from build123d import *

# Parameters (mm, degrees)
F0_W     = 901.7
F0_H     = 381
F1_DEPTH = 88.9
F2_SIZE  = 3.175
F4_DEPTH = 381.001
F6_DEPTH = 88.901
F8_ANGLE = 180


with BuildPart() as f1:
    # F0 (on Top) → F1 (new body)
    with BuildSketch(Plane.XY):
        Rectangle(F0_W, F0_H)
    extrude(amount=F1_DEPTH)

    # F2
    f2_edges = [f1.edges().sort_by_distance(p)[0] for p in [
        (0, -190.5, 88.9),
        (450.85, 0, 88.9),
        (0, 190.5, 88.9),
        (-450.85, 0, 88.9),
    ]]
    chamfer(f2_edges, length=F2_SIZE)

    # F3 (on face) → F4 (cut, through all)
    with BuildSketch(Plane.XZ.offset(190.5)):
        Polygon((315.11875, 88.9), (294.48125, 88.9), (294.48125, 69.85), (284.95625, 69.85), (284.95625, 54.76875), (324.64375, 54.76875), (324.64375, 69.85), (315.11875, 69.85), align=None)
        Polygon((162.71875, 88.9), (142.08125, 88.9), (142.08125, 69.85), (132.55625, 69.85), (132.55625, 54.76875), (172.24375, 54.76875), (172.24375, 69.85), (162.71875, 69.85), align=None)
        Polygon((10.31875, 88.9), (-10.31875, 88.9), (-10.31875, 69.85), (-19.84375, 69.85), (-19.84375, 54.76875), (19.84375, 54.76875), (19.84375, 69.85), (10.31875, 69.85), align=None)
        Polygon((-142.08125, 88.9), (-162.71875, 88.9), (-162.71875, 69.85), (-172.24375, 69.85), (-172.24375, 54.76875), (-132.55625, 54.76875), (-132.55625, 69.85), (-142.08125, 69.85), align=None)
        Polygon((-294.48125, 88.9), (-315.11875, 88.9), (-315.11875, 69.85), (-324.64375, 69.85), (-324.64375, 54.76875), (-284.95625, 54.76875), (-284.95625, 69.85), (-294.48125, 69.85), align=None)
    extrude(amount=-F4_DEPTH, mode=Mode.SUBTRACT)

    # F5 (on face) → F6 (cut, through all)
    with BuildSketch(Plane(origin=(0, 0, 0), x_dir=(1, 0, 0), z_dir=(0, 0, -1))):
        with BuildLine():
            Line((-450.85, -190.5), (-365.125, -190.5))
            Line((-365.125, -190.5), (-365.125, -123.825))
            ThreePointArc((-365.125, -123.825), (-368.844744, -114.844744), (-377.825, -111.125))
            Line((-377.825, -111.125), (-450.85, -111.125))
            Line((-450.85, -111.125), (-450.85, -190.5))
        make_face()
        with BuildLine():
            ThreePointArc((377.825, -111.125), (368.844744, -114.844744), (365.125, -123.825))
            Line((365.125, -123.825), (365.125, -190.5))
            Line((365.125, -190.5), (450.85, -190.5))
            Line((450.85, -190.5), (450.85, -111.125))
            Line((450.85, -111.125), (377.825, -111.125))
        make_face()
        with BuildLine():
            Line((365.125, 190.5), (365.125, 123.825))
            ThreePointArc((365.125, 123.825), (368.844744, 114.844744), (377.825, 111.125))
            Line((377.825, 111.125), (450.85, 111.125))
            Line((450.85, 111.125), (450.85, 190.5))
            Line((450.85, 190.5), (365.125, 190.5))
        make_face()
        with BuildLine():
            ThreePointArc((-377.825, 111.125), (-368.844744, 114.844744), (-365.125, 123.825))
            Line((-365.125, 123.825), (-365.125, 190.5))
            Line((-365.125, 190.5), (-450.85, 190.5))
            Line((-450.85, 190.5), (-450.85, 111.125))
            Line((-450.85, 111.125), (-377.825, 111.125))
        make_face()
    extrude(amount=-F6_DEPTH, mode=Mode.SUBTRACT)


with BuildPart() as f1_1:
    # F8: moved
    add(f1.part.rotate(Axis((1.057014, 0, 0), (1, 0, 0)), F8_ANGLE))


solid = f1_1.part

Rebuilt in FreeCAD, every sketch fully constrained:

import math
import FreeCAD as App
import Part
import Sketcher

V = App.Vector
Q = App.Units.Quantity


def edges_at(feature, points):
    """Names of the edges that pass closest to the given points."""
    edges = feature.Shape.Edges
    near = lambda p: min(range(len(edges)), key=lambda i: edges[i].distToShape(Part.Vertex(*p))[0])
    return sorted({f"Edge{near(p) + 1}" for p in points})

doc = App.newDocument("Part")
body = doc.addObject("PartDesign::Body", "Body")

sketch1 = body.newObject("Sketcher::SketchObject", "Sketch")
sketch1.AttachmentSupport = (doc.getObject("XY_Plane"), [""])
sketch1.MapMode = "FlatFace"
sketch1.addGeometry([
    Part.LineSegment(V(-451, 190, 0), V(-451, -190, 0)),
    Part.LineSegment(V(-451, -190, 0), V(451, -190, 0)),
    Part.LineSegment(V(451, -190, 0), V(451, 190, 0)),
    Part.LineSegment(V(451, 190, 0), V(-451, 190, 0)),
], False)
sketch1.addConstraint([
    Sketcher.Constraint("Coincident", 0, 2, 1, 1),
    Sketcher.Constraint("Coincident", 1, 2, 2, 1),
    Sketcher.Constraint("Coincident", 2, 2, 3, 1),
    Sketcher.Constraint("Coincident", 3, 2, 0, 1),
    Sketcher.Constraint("Vertical", 0),
    Sketcher.Constraint("Horizontal", 1),
    Sketcher.Constraint("Vertical", 2),
    Sketcher.Constraint("Horizontal", 3),
    Sketcher.Constraint("Symmetric", 0, 2, 2, 2, -1, 1),
    Sketcher.Constraint("DistanceY", 0, 2, 0, 1, Q("15 in")),
    Sketcher.Constraint("DistanceX", 1, 1, 1, 2, Q("35.5 in")),
])
pad1 = body.newObject("PartDesign::Pad", "Pad")
pad1.Profile = sketch1
pad1.Length = Q("3.5 in")
doc.recompute()

chamfer = body.newObject("PartDesign::Chamfer", "Chamfer")
chamfer.Base = (pad1, edges_at(pad1, [
    (0, -190.5, 88.9),
    (450.85, 0, 88.9),
    (0, 190.5, 88.9),
    (-450.85, 0, 88.9),
]))
chamfer.Size = Q("0.125 in")

sketch2 = body.newObject("Sketcher::SketchObject", "Sketch001")
sketch2.AttachmentSupport = (doc.getObject("XZ_Plane"), [""])
sketch2.MapMode = "FlatFace"
sketch2.AttachmentOffset = App.Placement(V(0, 0, 7.5 * 25.4), App.Rotation())
sketch2.addGeometry([
    Part.LineSegment(V(315, 89, 0), V(294, 89, 0)),
    Part.LineSegment(V(294, 89, 0), V(294, 70, 0)),
    Part.LineSegment(V(294, 70, 0), V(285, 70, 0)),
    Part.LineSegment(V(285, 70, 0), V(285, 55, 0)),
    Part.LineSegment(V(285, 55, 0), V(325, 55, 0)),
    Part.LineSegment(V(325, 55, 0), V(325, 70, 0)),
    Part.LineSegment(V(325, 70, 0), V(315, 70, 0)),
    Part.LineSegment(V(315, 70, 0), V(315, 89, 0)),
    Part.LineSegment(V(163, 89, 0), V(142, 89, 0)),
    Part.LineSegment(V(142, 89, 0), V(142, 70, 0)),
    Part.LineSegment(V(142, 70, 0), V(133, 70, 0)),
    Part.LineSegment(V(133, 70, 0), V(133, 55, 0)),
    Part.LineSegment(V(133, 55, 0), V(172, 55, 0)),
    Part.LineSegment(V(172, 55, 0), V(172, 70, 0)),
    Part.LineSegment(V(172, 70, 0), V(163, 70, 0)),
    Part.LineSegment(V(163, 70, 0), V(163, 89, 0)),
    Part.LineSegment(V(10, 89, 0), V(-10, 89, 0)),
    Part.LineSegment(V(-10, 89, 0), V(-10, 70, 0)),
    Part.LineSegment(V(-10, 70, 0), V(-20, 70, 0)),
    Part.LineSegment(V(-20, 70, 0), V(-20, 55, 0)),
    Part.LineSegment(V(-20, 55, 0), V(20, 55, 0)),
    Part.LineSegment(V(20, 55, 0), V(20, 70, 0)),
    Part.LineSegment(V(20, 70, 0), V(10, 70, 0)),
    Part.LineSegment(V(10, 70, 0), V(10, 89, 0)),
    Part.LineSegment(V(-142, 89, 0), V(-163, 89, 0)),
    Part.LineSegment(V(-163, 89, 0), V(-163, 70, 0)),
    Part.LineSegment(V(-163, 70, 0), V(-172, 70, 0)),
    Part.LineSegment(V(-172, 70, 0), V(-172, 55, 0)),
    Part.LineSegment(V(-172, 55, 0), V(-133, 55, 0)),
    Part.LineSegment(V(-133, 55, 0), V(-133, 70, 0)),
    Part.LineSegment(V(-133, 70, 0), V(-142, 70, 0)),
    Part.LineSegment(V(-142, 70, 0), V(-142, 89, 0)),
    Part.LineSegment(V(-294, 89, 0), V(-315, 89, 0)),
    Part.LineSegment(V(-315, 89, 0), V(-315, 70, 0)),
    Part.LineSegment(V(-315, 70, 0), V(-325, 70, 0)),
    Part.LineSegment(V(-325, 70, 0), V(-325, 55, 0)),
    Part.LineSegment(V(-325, 55, 0), V(-285, 55, 0)),
    Part.LineSegment(V(-285, 55, 0), V(-285, 70, 0)),
    Part.LineSegment(V(-285, 70, 0), V(-294, 70, 0)),
    Part.LineSegment(V(-294, 70, 0), V(-294, 89, 0)),
], False)
sketch2.addConstraint([
    Sketcher.Constraint("Coincident", 0, 2, 1, 1),
    Sketcher.Constraint("Coincident", 1, 2, 2, 1),
    Sketcher.Constraint("Coincident", 2, 2, 3, 1),
    Sketcher.Constraint("Coincident", 3, 2, 4, 1),
    Sketcher.Constraint("Coincident", 4, 2, 5, 1),
    Sketcher.Constraint("Coincident", 5, 2, 6, 1),
    Sketcher.Constraint("Coincident", 6, 2, 7, 1),
    Sketcher.Constraint("Coincident", 7, 2, 0, 1),
    Sketcher.Constraint("Coincident", 8, 2, 9, 1),
    Sketcher.Constraint("Coincident", 9, 2, 10, 1),
    Sketcher.Constraint("Coincident", 10, 2, 11, 1),
    Sketcher.Constraint("Coincident", 11, 2, 12, 1),
    Sketcher.Constraint("Coincident", 12, 2, 13, 1),
    Sketcher.Constraint("Coincident", 13, 2, 14, 1),
    Sketcher.Constraint("Coincident", 14, 2, 15, 1),
    Sketcher.Constraint("Coincident", 15, 2, 8, 1),
    Sketcher.Constraint("Coincident", 16, 2, 17, 1),
    Sketcher.Constraint("Coincident", 17, 2, 18, 1),
    Sketcher.Constraint("Coincident", 18, 2, 19, 1),
    Sketcher.Constraint("Coincident", 19, 2, 20, 1),
    Sketcher.Constraint("Coincident", 20, 2, 21, 1),
    Sketcher.Constraint("Coincident", 21, 2, 22, 1),
    Sketcher.Constraint("Coincident", 22, 2, 23, 1),
    Sketcher.Constraint("Coincident", 23, 2, 16, 1),
    Sketcher.Constraint("Coincident", 24, 2, 25, 1),
    Sketcher.Constraint("Coincident", 25, 2, 26, 1),
    Sketcher.Constraint("Coincident", 26, 2, 27, 1),
    Sketcher.Constraint("Coincident", 27, 2, 28, 1),
    Sketcher.Constraint("Coincident", 28, 2, 29, 1),
    Sketcher.Constraint("Coincident", 29, 2, 30, 1),
    Sketcher.Constraint("Coincident", 30, 2, 31, 1),
    Sketcher.Constraint("Coincident", 31, 2, 24, 1),
    Sketcher.Constraint("Coincident", 32, 2, 33, 1),
    Sketcher.Constraint("Coincident", 33, 2, 34, 1),
    Sketcher.Constraint("Coincident", 34, 2, 35, 1),
    Sketcher.Constraint("Coincident", 35, 2, 36, 1),
    Sketcher.Constraint("Coincident", 36, 2, 37, 1),
    Sketcher.Constraint("Coincident", 37, 2, 38, 1),
    Sketcher.Constraint("Coincident", 38, 2, 39, 1),
    Sketcher.Constraint("Coincident", 39, 2, 32, 1),
    Sketcher.Constraint("Horizontal", 0),
    Sketcher.Constraint("Vertical", 1),
    Sketcher.Constraint("Horizontal", 2),
    Sketcher.Constraint("Vertical", 3),
    Sketcher.Constraint("Horizontal", 4),
    Sketcher.Constraint("Vertical", 5),
    Sketcher.Constraint("Horizontal", 6),
    Sketcher.Constraint("Vertical", 7),
    Sketcher.Constraint("Horizontal", 8),
    Sketcher.Constraint("Vertical", 9),
    Sketcher.Constraint("Horizontal", 10),
    Sketcher.Constraint("Vertical", 11),
    Sketcher.Constraint("Horizontal", 12),
    Sketcher.Constraint("Vertical", 13),
    Sketcher.Constraint("Horizontal", 14),
    Sketcher.Constraint("Vertical", 15),
    Sketcher.Constraint("Horizontal", 16),
    Sketcher.Constraint("Vertical", 17),
    Sketcher.Constraint("Horizontal", 18),
    Sketcher.Constraint("Vertical", 19),
    Sketcher.Constraint("Horizontal", 20),
    Sketcher.Constraint("Vertical", 21),
    Sketcher.Constraint("Horizontal", 22),
    Sketcher.Constraint("Vertical", 23),
    Sketcher.Constraint("Horizontal", 24),
    Sketcher.Constraint("Vertical", 25),
    Sketcher.Constraint("Horizontal", 26),
    Sketcher.Constraint("Vertical", 27),
    Sketcher.Constraint("Horizontal", 28),
    Sketcher.Constraint("Vertical", 29),
    Sketcher.Constraint("Horizontal", 30),
    Sketcher.Constraint("Vertical", 31),
    Sketcher.Constraint("Horizontal", 32),
    Sketcher.Constraint("Vertical", 33),
    Sketcher.Constraint("Horizontal", 34),
    Sketcher.Constraint("Vertical", 35),
    Sketcher.Constraint("Horizontal", 36),
    Sketcher.Constraint("Vertical", 37),
    Sketcher.Constraint("Horizontal", 38),
    Sketcher.Constraint("Vertical", 39),
    Sketcher.Constraint("Symmetric", 18, 2, 21, 2, -2),
    Sketcher.Constraint("Symmetric", 15, 2, 24, 2, -2),
    Sketcher.Constraint("Symmetric", 13, 2, 26, 2, -2),
    Sketcher.Constraint("Symmetric", 11, 2, 28, 2, -2),
    Sketcher.Constraint("Symmetric", 9, 2, 30, 2, -2),
    Sketcher.Constraint("Symmetric", 7, 2, 32, 2, -2),
    Sketcher.Constraint("Symmetric", 5, 2, 34, 2, -2),
    Sketcher.Constraint("Symmetric", 3, 2, 36, 2, -2),
    Sketcher.Constraint("Symmetric", 1, 2, 38, 2, -2),
    Sketcher.Constraint("Horizontal", 2, 2, 5, 2),
    Sketcher.Constraint("Horizontal", 7, 2, 8, 2),
    Sketcher.Constraint("Horizontal", 6, 2, 9, 2),
    Sketcher.Constraint("Horizontal", 4, 2, 11, 2),
    Sketcher.Constraint("Horizontal", 10, 2, 13, 2),
    Sketcher.Constraint("Horizontal", 15, 2, 16, 2),
    Sketcher.Constraint("Horizontal", 14, 2, 17, 2),
    Sketcher.Constraint("Horizontal", 12, 2, 19, 2),
    Sketcher.Constraint("Equal", 2, 6),
    Sketcher.Constraint("Equal", 0, 8),
    Sketcher.Constraint("Equal", 6, 10),
    Sketcher.Constraint("Equal", 4, 12),
    Sketcher.Constraint("Equal", 8, 16),
    Sketcher.Constraint("Equal", 14, 18),
    Sketcher.Constraint("Equal", 12, 20),
    Sketcher.Constraint("DistanceX", 8, 2, 0, 2, Q("6 in")),
    Sketcher.Constraint("DistanceX", 16, 2, 8, 2, Q("6 in")),
    Sketcher.Constraint("DistanceY", 1, 2, 1, 1, Q("0.75 in")),
    Sketcher.Constraint("DistanceY", -1, 1, 0, 2, Q("3.5 in")),
    Sketcher.Constraint("DistanceX", 0, 2, 0, 1, Q("0.8125 in")),
    Sketcher.Constraint("DistanceX", 2, 2, 2, 1, Q("0.375 in")),
    Sketcher.Constraint("DistanceY", 3, 2, 3, 1, Q("0.59375 in")),
])
pocket1 = body.newObject("PartDesign::Pocket", "Pocket")
pocket1.Profile = sketch2
pocket1.Type = "ThroughAll"

sketch3 = body.newObject("Sketcher::SketchObject", "Sketch002")
sketch3.AttachmentSupport = (doc.getObject("XY_Plane"), [""])
sketch3.MapMode = "FlatFace"
sketch3.addGeometry([
    Part.LineSegment(V(-451, 190, 0), V(-365, 190, 0)),
    Part.LineSegment(V(-365, 190, 0), V(-365, 124, 0)),
    Part.ArcOfCircle(Part.Circle(V(-378, 124, 0), V(0, 0, 1), 13), math.radians(-90), math.radians(0)),
    Part.LineSegment(V(-378, 111, 0), V(-451, 111, 0)),
    Part.LineSegment(V(-451, 111, 0), V(-451, 190, 0)),
    Part.ArcOfCircle(Part.Circle(V(378, 124, 0), V(0, 0, 1), 13), math.radians(-180), math.radians(-90)),
    Part.LineSegment(V(365, 124, 0), V(365, 190, 0)),
    Part.LineSegment(V(365, 190, 0), V(451, 190, 0)),
    Part.LineSegment(V(451, 190, 0), V(451, 111, 0)),
    Part.LineSegment(V(451, 111, 0), V(378, 111, 0)),
    Part.LineSegment(V(365, -190, 0), V(365, -124, 0)),
    Part.ArcOfCircle(Part.Circle(V(378, -124, 0), V(0, 0, 1), 13), math.radians(90), math.radians(180)),
    Part.LineSegment(V(378, -111, 0), V(451, -111, 0)),
    Part.LineSegment(V(451, -111, 0), V(451, -190, 0)),
    Part.LineSegment(V(451, -190, 0), V(365, -190, 0)),
    Part.ArcOfCircle(Part.Circle(V(-378, -124, 0), V(0, 0, 1), 13), math.radians(0), math.radians(90)),
    Part.LineSegment(V(-365, -124, 0), V(-365, -190, 0)),
    Part.LineSegment(V(-365, -190, 0), V(-451, -190, 0)),
    Part.LineSegment(V(-451, -190, 0), V(-451, -111, 0)),
    Part.LineSegment(V(-451, -111, 0), V(-378, -111, 0)),
], False)
sketch3.addConstraint([
    Sketcher.Constraint("Coincident", 0, 2, 1, 1),
    Sketcher.Constraint("Tangent", 1, 2, 2, 2),
    Sketcher.Constraint("Tangent", 2, 1, 3, 1),
    Sketcher.Constraint("Coincident", 3, 2, 4, 1),
    Sketcher.Constraint("Coincident", 4, 2, 0, 1),
    Sketcher.Constraint("Tangent", 5, 1, 6, 1),
    Sketcher.Constraint("Coincident", 6, 2, 7, 1),
    Sketcher.Constraint("Coincident", 7, 2, 8, 1),
    Sketcher.Constraint("Coincident", 8, 2, 9, 1),
    Sketcher.Constraint("Tangent", 9, 2, 5, 2),
    Sketcher.Constraint("Tangent", 10, 2, 11, 2),
    Sketcher.Constraint("Tangent", 11, 1, 12, 1),
    Sketcher.Constraint("Coincident", 12, 2, 13, 1),
    Sketcher.Constraint("Coincident", 13, 2, 14, 1),
    Sketcher.Constraint("Coincident", 14, 2, 10, 1),
    Sketcher.Constraint("Tangent", 15, 1, 16, 1),
    Sketcher.Constraint("Coincident", 16, 2, 17, 1),
    Sketcher.Constraint("Coincident", 17, 2, 18, 1),
    Sketcher.Constraint("Coincident", 18, 2, 19, 1),
    Sketcher.Constraint("Tangent", 19, 2, 15, 2),
    Sketcher.Constraint("Horizontal", 0),
    Sketcher.Constraint("Vertical", 1),
    Sketcher.Constraint("Horizontal", 3),
    Sketcher.Constraint("Vertical", 4),
    Sketcher.Constraint("Vertical", 6),
    Sketcher.Constraint("Horizontal", 7),
    Sketcher.Constraint("Vertical", 8),
    Sketcher.Constraint("Horizontal", 9),
    Sketcher.Constraint("Vertical", 10),
    Sketcher.Constraint("Horizontal", 12),
    Sketcher.Constraint("Vertical", 13),
    Sketcher.Constraint("Horizontal", 14),
    Sketcher.Constraint("Vertical", 16),
    Sketcher.Constraint("Horizontal", 17),
    Sketcher.Constraint("Vertical", 18),
    Sketcher.Constraint("Horizontal", 19),
    Sketcher.Constraint("Equal", 2, 5),
    Sketcher.Constraint("Equal", 5, 11),
    Sketcher.Constraint("Equal", 11, 15),
    Sketcher.Constraint("Symmetric", 2, 3, 11, 3, -1, 1),
    Sketcher.Constraint("Symmetric", 5, 3, 15, 3, -1, 1),
    Sketcher.Constraint("Symmetric", 4, 2, 13, 2, -1, 1),
    Sketcher.Constraint("Symmetric", 7, 2, 17, 2, -1, 1),
    Sketcher.Constraint("Symmetric", 2, 3, 5, 3, -2),
    Sketcher.Constraint("Symmetric", 4, 2, 7, 2, -2),
    Sketcher.Constraint("Radius", 2, Q("0.5 in")),
    Sketcher.Constraint("DistanceY", -1, 1, 0, 2, Q("7.5 in")),
    Sketcher.Constraint("DistanceX", 0, 1, 0, 2, Q("3.375 in")),
    Sketcher.Constraint("DistanceY", 1, 2, 1, 1, Q("2.625 in")),
    Sketcher.Constraint("DistanceX", 3, 2, -1, 1, Q("17.75 in")),
])
pocket2 = body.newObject("PartDesign::Pocket", "Pocket001")
pocket2.Profile = sketch3
pocket2.Type = "ThroughAll"
pocket2.Reversed = True
body2 = doc.addObject("PartDesign::Body", "Body001")
doc.recompute()

body.Placement = App.Placement(V(0, 0, 0), App.Rotation(V(1, 0, 0), 180))
boolean = body2.newObject("PartDesign::Boolean", "Boolean")
boolean.Type = "Fuse"
boolean.addObjects([body])

doc.recompute()
